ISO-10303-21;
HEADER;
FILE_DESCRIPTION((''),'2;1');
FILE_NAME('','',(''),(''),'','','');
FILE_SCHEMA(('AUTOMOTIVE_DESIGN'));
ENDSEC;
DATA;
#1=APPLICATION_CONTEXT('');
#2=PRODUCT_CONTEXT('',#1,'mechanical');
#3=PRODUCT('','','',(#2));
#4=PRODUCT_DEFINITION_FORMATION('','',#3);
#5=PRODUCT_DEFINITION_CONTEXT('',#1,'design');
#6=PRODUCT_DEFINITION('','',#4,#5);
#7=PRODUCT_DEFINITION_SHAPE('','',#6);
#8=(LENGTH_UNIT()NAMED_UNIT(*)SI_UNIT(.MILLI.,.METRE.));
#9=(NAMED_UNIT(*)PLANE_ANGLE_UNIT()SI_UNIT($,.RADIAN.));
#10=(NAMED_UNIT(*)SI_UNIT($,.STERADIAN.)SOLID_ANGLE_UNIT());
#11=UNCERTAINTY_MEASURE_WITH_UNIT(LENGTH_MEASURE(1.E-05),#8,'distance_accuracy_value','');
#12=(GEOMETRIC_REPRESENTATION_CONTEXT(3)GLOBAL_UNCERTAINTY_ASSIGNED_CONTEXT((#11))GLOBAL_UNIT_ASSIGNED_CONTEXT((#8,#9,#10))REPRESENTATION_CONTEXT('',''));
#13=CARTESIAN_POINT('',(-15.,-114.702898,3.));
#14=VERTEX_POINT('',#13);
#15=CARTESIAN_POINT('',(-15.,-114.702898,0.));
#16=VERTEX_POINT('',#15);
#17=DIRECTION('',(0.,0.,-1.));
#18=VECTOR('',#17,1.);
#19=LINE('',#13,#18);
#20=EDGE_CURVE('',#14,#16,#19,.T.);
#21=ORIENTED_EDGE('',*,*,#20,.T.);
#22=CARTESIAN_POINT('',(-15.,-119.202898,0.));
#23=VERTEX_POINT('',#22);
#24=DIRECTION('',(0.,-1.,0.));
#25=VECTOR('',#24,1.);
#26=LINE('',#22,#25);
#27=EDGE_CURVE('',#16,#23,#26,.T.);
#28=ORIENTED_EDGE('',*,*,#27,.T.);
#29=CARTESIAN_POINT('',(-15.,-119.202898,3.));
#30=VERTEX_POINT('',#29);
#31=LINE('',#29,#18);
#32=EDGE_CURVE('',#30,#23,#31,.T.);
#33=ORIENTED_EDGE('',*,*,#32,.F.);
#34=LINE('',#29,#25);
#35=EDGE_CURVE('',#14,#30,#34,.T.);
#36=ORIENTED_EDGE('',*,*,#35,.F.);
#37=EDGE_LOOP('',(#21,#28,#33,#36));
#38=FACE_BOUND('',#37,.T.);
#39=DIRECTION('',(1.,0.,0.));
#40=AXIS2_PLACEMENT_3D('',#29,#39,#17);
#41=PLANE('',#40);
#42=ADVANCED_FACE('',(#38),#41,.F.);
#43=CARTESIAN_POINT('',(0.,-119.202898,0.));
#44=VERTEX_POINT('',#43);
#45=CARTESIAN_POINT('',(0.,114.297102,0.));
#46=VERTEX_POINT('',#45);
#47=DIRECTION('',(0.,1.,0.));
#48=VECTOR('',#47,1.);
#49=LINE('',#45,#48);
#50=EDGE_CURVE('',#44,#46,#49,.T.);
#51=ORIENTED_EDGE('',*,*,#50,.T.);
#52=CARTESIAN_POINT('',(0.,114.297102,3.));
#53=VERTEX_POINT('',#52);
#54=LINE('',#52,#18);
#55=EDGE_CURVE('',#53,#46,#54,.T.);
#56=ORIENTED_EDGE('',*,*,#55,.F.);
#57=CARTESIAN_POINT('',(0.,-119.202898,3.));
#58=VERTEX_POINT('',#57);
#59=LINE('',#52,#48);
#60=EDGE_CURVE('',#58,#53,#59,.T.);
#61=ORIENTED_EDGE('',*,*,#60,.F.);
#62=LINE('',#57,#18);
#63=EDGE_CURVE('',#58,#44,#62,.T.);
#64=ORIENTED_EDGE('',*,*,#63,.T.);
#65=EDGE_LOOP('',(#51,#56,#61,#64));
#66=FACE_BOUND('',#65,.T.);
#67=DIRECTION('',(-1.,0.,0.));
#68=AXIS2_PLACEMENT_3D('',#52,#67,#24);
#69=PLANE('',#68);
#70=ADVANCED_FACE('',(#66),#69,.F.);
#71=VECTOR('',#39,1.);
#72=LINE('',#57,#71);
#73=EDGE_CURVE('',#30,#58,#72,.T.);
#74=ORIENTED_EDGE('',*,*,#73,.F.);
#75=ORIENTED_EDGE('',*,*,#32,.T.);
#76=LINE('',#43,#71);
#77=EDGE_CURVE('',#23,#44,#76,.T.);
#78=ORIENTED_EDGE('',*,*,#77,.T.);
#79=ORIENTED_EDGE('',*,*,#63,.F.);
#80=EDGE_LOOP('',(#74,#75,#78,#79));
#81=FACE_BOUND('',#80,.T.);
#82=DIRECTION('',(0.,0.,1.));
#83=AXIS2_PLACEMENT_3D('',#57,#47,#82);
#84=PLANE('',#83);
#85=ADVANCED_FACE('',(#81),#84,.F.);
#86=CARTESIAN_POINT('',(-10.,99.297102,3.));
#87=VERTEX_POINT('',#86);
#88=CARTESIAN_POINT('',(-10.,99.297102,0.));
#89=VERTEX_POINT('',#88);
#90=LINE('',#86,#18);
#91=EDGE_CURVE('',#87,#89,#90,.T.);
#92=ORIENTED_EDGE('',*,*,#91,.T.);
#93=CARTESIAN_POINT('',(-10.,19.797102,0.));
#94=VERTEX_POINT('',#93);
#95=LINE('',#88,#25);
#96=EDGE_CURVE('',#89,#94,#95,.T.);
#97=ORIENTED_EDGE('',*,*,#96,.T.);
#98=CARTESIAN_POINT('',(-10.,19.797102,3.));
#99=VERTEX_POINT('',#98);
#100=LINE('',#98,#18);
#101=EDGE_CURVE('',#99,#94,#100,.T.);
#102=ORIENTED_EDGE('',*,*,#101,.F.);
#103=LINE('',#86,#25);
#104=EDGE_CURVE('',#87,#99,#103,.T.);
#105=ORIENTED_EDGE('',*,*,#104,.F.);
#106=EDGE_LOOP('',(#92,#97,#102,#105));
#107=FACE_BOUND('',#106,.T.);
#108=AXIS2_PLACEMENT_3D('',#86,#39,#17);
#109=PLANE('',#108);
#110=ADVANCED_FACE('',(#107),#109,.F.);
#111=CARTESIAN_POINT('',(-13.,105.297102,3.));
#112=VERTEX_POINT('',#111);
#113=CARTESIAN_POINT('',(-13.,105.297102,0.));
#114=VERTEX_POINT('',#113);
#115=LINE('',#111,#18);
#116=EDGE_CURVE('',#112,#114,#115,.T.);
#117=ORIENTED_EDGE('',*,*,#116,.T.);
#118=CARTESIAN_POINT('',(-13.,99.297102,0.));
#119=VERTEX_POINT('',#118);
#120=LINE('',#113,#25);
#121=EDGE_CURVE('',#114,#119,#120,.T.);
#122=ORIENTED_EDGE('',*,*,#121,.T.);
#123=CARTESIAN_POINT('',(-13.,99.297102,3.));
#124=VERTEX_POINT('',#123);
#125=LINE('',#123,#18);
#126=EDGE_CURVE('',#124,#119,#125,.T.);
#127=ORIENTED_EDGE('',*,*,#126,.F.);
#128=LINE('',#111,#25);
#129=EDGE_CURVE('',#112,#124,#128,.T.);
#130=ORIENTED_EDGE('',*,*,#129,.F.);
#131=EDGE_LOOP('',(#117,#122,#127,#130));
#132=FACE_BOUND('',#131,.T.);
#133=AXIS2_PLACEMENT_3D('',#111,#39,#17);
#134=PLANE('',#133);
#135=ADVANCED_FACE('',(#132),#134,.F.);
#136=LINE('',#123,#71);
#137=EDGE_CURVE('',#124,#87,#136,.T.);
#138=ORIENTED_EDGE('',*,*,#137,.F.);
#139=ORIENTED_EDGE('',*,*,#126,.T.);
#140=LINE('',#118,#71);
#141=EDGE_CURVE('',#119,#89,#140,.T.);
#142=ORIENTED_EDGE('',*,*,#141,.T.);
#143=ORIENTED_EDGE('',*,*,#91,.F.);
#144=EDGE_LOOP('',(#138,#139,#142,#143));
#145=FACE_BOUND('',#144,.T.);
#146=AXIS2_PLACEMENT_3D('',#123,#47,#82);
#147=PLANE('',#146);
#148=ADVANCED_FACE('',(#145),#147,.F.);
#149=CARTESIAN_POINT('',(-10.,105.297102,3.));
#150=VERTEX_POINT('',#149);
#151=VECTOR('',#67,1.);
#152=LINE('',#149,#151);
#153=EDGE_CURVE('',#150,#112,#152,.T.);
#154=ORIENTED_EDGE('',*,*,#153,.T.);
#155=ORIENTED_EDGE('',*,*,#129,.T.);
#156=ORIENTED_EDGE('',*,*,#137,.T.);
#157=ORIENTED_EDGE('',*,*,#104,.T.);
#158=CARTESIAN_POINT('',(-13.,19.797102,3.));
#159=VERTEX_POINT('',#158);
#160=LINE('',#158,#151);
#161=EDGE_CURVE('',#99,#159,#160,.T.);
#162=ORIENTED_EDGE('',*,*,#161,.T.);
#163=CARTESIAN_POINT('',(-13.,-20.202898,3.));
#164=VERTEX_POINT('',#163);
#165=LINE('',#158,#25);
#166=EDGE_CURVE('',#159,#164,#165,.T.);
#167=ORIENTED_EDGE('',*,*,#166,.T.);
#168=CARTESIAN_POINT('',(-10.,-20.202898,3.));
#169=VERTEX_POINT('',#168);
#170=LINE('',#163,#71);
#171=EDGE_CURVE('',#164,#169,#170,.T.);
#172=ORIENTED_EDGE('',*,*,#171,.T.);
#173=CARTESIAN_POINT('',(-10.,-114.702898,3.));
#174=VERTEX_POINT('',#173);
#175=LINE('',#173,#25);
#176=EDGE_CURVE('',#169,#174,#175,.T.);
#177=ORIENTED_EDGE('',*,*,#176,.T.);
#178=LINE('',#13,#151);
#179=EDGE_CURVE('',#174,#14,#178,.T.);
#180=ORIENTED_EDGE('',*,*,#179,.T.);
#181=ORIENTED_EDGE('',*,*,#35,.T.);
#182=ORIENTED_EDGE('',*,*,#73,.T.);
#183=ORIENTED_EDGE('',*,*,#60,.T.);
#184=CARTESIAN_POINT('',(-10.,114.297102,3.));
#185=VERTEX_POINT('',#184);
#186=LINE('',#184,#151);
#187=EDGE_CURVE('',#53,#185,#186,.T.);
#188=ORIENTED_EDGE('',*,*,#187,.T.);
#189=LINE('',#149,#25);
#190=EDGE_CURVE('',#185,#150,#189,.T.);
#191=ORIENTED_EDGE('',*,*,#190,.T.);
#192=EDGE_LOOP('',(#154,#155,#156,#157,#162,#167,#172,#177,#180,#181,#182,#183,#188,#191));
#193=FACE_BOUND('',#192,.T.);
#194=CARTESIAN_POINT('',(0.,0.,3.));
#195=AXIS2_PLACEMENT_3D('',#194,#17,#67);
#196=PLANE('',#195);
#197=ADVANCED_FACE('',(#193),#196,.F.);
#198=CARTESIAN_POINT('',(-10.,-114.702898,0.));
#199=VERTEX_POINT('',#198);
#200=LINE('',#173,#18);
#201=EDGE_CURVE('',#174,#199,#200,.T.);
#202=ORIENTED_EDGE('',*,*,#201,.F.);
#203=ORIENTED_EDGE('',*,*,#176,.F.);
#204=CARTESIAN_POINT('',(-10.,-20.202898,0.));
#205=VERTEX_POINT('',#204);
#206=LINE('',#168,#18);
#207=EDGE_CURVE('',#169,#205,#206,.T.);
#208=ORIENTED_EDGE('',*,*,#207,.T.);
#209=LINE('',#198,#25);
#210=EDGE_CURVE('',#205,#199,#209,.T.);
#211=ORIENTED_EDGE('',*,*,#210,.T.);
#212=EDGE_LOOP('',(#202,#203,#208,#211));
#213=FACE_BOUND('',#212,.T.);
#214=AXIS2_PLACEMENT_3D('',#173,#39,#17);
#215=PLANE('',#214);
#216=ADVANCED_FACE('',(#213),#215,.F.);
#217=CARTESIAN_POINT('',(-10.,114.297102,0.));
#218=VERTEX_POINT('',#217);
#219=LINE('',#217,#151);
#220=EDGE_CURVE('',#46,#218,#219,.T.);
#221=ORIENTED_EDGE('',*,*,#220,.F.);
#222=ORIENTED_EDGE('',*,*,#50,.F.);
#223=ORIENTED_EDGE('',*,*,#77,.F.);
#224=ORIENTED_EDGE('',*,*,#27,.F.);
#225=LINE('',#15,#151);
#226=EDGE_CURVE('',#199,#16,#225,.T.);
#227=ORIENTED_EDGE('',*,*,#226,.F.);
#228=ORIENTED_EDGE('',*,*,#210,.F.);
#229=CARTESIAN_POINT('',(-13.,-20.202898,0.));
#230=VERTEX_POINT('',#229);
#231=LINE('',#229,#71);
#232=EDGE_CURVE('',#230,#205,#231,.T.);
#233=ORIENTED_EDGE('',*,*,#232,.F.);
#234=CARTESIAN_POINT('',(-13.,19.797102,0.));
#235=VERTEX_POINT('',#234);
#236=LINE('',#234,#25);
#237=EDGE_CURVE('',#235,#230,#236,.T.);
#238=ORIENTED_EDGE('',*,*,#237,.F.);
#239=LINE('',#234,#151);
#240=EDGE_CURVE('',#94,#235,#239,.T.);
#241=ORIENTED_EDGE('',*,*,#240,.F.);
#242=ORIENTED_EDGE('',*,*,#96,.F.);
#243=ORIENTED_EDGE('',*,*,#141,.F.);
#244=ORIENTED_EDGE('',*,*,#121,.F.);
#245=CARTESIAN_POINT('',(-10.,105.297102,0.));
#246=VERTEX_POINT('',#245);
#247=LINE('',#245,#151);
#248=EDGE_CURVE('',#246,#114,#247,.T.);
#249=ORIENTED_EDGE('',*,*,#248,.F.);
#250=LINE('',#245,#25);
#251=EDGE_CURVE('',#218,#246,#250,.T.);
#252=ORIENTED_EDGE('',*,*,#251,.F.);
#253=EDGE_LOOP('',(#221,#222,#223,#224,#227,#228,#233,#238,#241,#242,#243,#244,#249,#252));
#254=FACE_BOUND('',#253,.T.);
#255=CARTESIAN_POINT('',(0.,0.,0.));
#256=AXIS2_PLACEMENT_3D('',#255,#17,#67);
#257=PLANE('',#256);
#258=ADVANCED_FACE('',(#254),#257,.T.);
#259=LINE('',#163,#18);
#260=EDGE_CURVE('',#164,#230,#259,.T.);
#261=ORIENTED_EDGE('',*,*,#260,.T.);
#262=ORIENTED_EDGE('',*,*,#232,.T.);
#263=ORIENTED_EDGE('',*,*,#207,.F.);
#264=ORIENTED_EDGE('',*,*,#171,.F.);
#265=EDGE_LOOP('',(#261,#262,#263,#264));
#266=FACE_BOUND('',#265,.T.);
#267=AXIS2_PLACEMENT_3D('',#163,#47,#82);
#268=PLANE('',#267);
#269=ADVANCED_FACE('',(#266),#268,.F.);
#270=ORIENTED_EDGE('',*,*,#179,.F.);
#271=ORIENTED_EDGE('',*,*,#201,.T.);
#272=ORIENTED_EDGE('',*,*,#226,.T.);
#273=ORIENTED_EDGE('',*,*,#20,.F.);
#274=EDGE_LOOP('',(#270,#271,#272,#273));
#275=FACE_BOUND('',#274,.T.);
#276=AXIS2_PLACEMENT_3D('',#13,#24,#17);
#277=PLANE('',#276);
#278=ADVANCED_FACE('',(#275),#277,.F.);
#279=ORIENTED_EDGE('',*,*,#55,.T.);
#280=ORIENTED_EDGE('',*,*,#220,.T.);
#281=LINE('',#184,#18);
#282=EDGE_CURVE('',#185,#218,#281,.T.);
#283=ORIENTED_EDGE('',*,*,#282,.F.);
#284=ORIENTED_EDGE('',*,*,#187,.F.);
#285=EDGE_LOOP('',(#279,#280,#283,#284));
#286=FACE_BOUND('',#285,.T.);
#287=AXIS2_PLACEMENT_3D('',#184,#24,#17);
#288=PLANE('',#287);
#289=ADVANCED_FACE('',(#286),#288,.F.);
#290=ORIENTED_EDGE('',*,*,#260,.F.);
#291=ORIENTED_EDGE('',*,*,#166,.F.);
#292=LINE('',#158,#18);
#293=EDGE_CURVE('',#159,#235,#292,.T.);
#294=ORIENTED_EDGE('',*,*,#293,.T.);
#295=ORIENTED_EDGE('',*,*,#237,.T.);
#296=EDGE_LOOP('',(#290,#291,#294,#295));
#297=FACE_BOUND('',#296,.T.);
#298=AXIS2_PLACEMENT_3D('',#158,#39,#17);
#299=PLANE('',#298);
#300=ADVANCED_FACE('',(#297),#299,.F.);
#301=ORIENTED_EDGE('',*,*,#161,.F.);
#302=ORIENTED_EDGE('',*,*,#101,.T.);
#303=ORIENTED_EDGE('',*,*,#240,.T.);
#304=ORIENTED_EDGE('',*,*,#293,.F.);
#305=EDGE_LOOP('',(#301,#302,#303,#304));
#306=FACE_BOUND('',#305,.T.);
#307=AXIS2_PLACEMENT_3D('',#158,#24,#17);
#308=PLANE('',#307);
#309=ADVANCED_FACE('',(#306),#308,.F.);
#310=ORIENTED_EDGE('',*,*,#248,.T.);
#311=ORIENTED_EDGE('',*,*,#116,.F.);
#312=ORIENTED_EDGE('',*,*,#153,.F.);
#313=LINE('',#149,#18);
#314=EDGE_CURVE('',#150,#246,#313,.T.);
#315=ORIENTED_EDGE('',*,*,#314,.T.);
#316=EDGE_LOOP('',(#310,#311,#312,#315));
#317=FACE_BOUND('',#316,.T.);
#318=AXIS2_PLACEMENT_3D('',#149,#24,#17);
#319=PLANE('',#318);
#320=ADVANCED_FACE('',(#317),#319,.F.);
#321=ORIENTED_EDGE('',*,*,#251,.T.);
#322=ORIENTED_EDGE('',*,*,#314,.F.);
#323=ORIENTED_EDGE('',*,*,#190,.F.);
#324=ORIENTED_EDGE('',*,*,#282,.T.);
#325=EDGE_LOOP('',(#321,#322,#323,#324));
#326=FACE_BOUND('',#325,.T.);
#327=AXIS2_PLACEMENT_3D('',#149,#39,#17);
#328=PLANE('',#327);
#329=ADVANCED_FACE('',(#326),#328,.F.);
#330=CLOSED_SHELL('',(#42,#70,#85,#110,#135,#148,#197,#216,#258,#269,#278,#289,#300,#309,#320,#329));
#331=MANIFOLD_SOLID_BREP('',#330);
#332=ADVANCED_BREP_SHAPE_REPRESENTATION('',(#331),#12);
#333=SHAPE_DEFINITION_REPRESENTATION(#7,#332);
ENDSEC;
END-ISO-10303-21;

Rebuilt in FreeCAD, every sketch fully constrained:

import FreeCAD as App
import Part
import Sketcher
from FreeCAD import Vector


def add_polygon(sketch, points):
    """Adds a closed chain of lines whose ends are joined by coincident constraints."""
    first, n = sketch.GeometryCount, len(points)
    for a, b in zip(points, points[1:] + points[:1]):
        sketch.addGeometry(Part.LineSegment(App.Vector(*a, 0), App.Vector(*b, 0)), False)
    for i in range(n):
        sketch.addConstraint(Sketcher.Constraint("Coincident", first + i, 2, first + (i + 1) % n, 1))

doc = App.newDocument("Part")
body = doc.addObject("PartDesign::Body", "Body")

sketch1 = body.newObject("Sketcher::SketchObject", "Sketch")
sketch1.AttachmentSupport = (doc.getObject("XY_Plane"), [""])
sketch1.MapMode = "FlatFace"
add_polygon(sketch1, [(0, 114.3), (-10, 114.3), (-10, 105.3), (-13, 105.3), (-13, 99.3), (-10, 99.3), (-10, 19.8), (-13, 19.8), (-13, -20.2), (-10, -20.2), (-10, -114.7), (-15, -114.7), (-15, -119.2), (0, -119.2)])
sketch1.addConstraint([
    Sketcher.Constraint("Horizontal", 0),
    Sketcher.Constraint("Vertical", 1),
    Sketcher.Constraint("Horizontal", 2),
    Sketcher.Constraint("Vertical", 3),
    Sketcher.Constraint("Horizontal", 4),
    Sketcher.Constraint("Vertical", 5),
    Sketcher.Constraint("Horizontal", 6),
    Sketcher.Constraint("Vertical", 7),
    Sketcher.Constraint("Horizontal", 8),
    Sketcher.Constraint("Vertical", 9),
    Sketcher.Constraint("Horizontal", 10),
    Sketcher.Constraint("Vertical", 11),
    Sketcher.Constraint("Horizontal", 12),
    Sketcher.Constraint("Vertical", 13),
    Sketcher.Constraint("PointOnObject", 12, 2, -2),
    Sketcher.Constraint("Vertical", 1, 2, 4, 2),
    Sketcher.Constraint("Vertical", 3, 2, 6, 2),
    Sketcher.Constraint("Vertical", 5, 2, 8, 2),
    Sketcher.Constraint("DistanceX", 0, 2, 0, 1, 10.0),
    Sketcher.Constraint("DistanceX", 2, 2, 2, 1, 3.0),
    Sketcher.Constraint("DistanceX", 10, 2, 10, 1, 5.0),
    Sketcher.Constraint("DistanceY", 1, 2, 1, 1, 9.0),
    Sketcher.Constraint("DistanceY", 3, 2, 3, 1, 6.0),
    Sketcher.Constraint("DistanceY", 7, 2, 7, 1, 40.0),
    Sketcher.Constraint("DistanceY", 5, 2, 5, 1, 79.5),
    Sketcher.Constraint("DistanceY", 9, 2, 9, 1, 94.5),
    Sketcher.Constraint("DistanceY", 11, 2, 11, 1, 4.5),
    Sketcher.Constraint("DistanceY", -1, 1, 0, 2, 114.297102),
])
pad1 = body.newObject("PartDesign::Pad", "Pad")
pad1.Profile = sketch1
pad1.Length = 3

doc.recompute()
